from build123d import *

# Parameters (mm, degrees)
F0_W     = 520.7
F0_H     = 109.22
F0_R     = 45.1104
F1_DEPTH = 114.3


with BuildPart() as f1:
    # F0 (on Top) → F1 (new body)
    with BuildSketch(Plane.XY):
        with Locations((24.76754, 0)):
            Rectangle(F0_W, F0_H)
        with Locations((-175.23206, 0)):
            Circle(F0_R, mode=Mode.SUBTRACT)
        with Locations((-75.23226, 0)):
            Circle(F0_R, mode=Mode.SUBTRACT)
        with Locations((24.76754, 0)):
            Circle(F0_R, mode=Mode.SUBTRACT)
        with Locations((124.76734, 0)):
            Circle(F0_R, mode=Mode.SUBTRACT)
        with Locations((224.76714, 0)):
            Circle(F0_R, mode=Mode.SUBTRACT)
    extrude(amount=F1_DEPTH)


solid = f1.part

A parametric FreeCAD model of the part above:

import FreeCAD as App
import Part
import Sketcher
Q = App.Units.Quantity


def add_polygon(sketch, points):
    """Adds a closed chain of lines whose ends are joined by coincident constraints."""
    first, n = sketch.GeometryCount, len(points)
    for a, b in zip(points, points[1:] + points[:1]):
        sketch.addGeometry(Part.LineSegment(App.Vector(*a, 0), App.Vector(*b, 0)), False)
    for i in range(n):
        sketch.addConstraint(Sketcher.Constraint("Coincident", first + i, 2, first + (i + 1) % n, 1))

doc = App.newDocument("Part")
body = doc.addObject("PartDesign::Body", "Body")

# Sketch on XY plane
sketch1 = body.newObject("Sketcher::SketchObject", "Sketch")
sketch1.AttachmentSupport = (doc.getObject("XY_Plane"), [""])
sketch1.MapMode = "FlatFace"
add_polygon(sketch1, [(-236, 55), (-236, -55), (285, -55), (285, 55)])  # lines 0-3
sketch1.addGeometry(Part.Circle(App.Vector(-175, 0, 0), App.Vector(0, 0, 1), 45), False)  # 4
sketch1.addGeometry(Part.Circle(App.Vector(-75, 0, 0), App.Vector(0, 0, 1), 45), False)  # 5
sketch1.addGeometry(Part.Circle(App.Vector(25, 0, 0), App.Vector(0, 0, 1), 45), False)  # 6
sketch1.addGeometry(Part.Circle(App.Vector(125, 0, 0), App.Vector(0, 0, 1), 45), False)  # 7
sketch1.addGeometry(Part.Circle(App.Vector(225, 0, 0), App.Vector(0, 0, 1), 45), False)  # 8
sketch1.addConstraint([
    Sketcher.Constraint("Vertical", 0),
    Sketcher.Constraint("Horizontal", 1),
    Sketcher.Constraint("Vertical", 2),
    Sketcher.Constraint("Horizontal", 3),
    Sketcher.Constraint("Equal", 4, 5),
    Sketcher.Constraint("Equal", 5, 6),
    Sketcher.Constraint("Equal", 6, 7),
    Sketcher.Constraint("Equal", 7, 8),
    Sketcher.Constraint("PointOnObject", 4, 3, -1),
    Sketcher.Constraint("PointOnObject", 5, 3, -1),
    Sketcher.Constraint("PointOnObject", 6, 3, -1),
    Sketcher.Constraint("PointOnObject", 7, 3, -1),
    Sketcher.Constraint("PointOnObject", 8, 3, -1),
    Sketcher.Constraint("Diameter", 4, Q("3.552 in")),
    Sketcher.Constraint("DistanceX", 1, 1, 1, 2, Q("20.5 in")),
    Sketcher.Constraint("DistanceY", 0, 2, 0, 1, Q("4.3 in")),
    Sketcher.Constraint("DistanceY", 0, 2, -1, 1, Q("2.15 in")),
    Sketcher.Constraint("DistanceX", 0, 2, 6, 3, Q("10.25 in")),
    Sketcher.Constraint("DistanceX", 4, 3, 5, 3, Q("3.937 in")),
    Sketcher.Constraint("DistanceX", 5, 3, 6, 3, Q("3.937 in")),
    Sketcher.Constraint("DistanceX", 6, 3, 7, 3, Q("3.937 in")),
    Sketcher.Constraint("DistanceX", 7, 3, 8, 3, Q("3.937 in")),
    Sketcher.Constraint("DistanceX", 4, 3, -1, 1, Q("6.8989 in")),
])
pad1 = body.newObject("PartDesign::Pad", "Pad")
pad1.Profile = sketch1
pad1.Length = Q("4.5 in")

doc.recompute()
